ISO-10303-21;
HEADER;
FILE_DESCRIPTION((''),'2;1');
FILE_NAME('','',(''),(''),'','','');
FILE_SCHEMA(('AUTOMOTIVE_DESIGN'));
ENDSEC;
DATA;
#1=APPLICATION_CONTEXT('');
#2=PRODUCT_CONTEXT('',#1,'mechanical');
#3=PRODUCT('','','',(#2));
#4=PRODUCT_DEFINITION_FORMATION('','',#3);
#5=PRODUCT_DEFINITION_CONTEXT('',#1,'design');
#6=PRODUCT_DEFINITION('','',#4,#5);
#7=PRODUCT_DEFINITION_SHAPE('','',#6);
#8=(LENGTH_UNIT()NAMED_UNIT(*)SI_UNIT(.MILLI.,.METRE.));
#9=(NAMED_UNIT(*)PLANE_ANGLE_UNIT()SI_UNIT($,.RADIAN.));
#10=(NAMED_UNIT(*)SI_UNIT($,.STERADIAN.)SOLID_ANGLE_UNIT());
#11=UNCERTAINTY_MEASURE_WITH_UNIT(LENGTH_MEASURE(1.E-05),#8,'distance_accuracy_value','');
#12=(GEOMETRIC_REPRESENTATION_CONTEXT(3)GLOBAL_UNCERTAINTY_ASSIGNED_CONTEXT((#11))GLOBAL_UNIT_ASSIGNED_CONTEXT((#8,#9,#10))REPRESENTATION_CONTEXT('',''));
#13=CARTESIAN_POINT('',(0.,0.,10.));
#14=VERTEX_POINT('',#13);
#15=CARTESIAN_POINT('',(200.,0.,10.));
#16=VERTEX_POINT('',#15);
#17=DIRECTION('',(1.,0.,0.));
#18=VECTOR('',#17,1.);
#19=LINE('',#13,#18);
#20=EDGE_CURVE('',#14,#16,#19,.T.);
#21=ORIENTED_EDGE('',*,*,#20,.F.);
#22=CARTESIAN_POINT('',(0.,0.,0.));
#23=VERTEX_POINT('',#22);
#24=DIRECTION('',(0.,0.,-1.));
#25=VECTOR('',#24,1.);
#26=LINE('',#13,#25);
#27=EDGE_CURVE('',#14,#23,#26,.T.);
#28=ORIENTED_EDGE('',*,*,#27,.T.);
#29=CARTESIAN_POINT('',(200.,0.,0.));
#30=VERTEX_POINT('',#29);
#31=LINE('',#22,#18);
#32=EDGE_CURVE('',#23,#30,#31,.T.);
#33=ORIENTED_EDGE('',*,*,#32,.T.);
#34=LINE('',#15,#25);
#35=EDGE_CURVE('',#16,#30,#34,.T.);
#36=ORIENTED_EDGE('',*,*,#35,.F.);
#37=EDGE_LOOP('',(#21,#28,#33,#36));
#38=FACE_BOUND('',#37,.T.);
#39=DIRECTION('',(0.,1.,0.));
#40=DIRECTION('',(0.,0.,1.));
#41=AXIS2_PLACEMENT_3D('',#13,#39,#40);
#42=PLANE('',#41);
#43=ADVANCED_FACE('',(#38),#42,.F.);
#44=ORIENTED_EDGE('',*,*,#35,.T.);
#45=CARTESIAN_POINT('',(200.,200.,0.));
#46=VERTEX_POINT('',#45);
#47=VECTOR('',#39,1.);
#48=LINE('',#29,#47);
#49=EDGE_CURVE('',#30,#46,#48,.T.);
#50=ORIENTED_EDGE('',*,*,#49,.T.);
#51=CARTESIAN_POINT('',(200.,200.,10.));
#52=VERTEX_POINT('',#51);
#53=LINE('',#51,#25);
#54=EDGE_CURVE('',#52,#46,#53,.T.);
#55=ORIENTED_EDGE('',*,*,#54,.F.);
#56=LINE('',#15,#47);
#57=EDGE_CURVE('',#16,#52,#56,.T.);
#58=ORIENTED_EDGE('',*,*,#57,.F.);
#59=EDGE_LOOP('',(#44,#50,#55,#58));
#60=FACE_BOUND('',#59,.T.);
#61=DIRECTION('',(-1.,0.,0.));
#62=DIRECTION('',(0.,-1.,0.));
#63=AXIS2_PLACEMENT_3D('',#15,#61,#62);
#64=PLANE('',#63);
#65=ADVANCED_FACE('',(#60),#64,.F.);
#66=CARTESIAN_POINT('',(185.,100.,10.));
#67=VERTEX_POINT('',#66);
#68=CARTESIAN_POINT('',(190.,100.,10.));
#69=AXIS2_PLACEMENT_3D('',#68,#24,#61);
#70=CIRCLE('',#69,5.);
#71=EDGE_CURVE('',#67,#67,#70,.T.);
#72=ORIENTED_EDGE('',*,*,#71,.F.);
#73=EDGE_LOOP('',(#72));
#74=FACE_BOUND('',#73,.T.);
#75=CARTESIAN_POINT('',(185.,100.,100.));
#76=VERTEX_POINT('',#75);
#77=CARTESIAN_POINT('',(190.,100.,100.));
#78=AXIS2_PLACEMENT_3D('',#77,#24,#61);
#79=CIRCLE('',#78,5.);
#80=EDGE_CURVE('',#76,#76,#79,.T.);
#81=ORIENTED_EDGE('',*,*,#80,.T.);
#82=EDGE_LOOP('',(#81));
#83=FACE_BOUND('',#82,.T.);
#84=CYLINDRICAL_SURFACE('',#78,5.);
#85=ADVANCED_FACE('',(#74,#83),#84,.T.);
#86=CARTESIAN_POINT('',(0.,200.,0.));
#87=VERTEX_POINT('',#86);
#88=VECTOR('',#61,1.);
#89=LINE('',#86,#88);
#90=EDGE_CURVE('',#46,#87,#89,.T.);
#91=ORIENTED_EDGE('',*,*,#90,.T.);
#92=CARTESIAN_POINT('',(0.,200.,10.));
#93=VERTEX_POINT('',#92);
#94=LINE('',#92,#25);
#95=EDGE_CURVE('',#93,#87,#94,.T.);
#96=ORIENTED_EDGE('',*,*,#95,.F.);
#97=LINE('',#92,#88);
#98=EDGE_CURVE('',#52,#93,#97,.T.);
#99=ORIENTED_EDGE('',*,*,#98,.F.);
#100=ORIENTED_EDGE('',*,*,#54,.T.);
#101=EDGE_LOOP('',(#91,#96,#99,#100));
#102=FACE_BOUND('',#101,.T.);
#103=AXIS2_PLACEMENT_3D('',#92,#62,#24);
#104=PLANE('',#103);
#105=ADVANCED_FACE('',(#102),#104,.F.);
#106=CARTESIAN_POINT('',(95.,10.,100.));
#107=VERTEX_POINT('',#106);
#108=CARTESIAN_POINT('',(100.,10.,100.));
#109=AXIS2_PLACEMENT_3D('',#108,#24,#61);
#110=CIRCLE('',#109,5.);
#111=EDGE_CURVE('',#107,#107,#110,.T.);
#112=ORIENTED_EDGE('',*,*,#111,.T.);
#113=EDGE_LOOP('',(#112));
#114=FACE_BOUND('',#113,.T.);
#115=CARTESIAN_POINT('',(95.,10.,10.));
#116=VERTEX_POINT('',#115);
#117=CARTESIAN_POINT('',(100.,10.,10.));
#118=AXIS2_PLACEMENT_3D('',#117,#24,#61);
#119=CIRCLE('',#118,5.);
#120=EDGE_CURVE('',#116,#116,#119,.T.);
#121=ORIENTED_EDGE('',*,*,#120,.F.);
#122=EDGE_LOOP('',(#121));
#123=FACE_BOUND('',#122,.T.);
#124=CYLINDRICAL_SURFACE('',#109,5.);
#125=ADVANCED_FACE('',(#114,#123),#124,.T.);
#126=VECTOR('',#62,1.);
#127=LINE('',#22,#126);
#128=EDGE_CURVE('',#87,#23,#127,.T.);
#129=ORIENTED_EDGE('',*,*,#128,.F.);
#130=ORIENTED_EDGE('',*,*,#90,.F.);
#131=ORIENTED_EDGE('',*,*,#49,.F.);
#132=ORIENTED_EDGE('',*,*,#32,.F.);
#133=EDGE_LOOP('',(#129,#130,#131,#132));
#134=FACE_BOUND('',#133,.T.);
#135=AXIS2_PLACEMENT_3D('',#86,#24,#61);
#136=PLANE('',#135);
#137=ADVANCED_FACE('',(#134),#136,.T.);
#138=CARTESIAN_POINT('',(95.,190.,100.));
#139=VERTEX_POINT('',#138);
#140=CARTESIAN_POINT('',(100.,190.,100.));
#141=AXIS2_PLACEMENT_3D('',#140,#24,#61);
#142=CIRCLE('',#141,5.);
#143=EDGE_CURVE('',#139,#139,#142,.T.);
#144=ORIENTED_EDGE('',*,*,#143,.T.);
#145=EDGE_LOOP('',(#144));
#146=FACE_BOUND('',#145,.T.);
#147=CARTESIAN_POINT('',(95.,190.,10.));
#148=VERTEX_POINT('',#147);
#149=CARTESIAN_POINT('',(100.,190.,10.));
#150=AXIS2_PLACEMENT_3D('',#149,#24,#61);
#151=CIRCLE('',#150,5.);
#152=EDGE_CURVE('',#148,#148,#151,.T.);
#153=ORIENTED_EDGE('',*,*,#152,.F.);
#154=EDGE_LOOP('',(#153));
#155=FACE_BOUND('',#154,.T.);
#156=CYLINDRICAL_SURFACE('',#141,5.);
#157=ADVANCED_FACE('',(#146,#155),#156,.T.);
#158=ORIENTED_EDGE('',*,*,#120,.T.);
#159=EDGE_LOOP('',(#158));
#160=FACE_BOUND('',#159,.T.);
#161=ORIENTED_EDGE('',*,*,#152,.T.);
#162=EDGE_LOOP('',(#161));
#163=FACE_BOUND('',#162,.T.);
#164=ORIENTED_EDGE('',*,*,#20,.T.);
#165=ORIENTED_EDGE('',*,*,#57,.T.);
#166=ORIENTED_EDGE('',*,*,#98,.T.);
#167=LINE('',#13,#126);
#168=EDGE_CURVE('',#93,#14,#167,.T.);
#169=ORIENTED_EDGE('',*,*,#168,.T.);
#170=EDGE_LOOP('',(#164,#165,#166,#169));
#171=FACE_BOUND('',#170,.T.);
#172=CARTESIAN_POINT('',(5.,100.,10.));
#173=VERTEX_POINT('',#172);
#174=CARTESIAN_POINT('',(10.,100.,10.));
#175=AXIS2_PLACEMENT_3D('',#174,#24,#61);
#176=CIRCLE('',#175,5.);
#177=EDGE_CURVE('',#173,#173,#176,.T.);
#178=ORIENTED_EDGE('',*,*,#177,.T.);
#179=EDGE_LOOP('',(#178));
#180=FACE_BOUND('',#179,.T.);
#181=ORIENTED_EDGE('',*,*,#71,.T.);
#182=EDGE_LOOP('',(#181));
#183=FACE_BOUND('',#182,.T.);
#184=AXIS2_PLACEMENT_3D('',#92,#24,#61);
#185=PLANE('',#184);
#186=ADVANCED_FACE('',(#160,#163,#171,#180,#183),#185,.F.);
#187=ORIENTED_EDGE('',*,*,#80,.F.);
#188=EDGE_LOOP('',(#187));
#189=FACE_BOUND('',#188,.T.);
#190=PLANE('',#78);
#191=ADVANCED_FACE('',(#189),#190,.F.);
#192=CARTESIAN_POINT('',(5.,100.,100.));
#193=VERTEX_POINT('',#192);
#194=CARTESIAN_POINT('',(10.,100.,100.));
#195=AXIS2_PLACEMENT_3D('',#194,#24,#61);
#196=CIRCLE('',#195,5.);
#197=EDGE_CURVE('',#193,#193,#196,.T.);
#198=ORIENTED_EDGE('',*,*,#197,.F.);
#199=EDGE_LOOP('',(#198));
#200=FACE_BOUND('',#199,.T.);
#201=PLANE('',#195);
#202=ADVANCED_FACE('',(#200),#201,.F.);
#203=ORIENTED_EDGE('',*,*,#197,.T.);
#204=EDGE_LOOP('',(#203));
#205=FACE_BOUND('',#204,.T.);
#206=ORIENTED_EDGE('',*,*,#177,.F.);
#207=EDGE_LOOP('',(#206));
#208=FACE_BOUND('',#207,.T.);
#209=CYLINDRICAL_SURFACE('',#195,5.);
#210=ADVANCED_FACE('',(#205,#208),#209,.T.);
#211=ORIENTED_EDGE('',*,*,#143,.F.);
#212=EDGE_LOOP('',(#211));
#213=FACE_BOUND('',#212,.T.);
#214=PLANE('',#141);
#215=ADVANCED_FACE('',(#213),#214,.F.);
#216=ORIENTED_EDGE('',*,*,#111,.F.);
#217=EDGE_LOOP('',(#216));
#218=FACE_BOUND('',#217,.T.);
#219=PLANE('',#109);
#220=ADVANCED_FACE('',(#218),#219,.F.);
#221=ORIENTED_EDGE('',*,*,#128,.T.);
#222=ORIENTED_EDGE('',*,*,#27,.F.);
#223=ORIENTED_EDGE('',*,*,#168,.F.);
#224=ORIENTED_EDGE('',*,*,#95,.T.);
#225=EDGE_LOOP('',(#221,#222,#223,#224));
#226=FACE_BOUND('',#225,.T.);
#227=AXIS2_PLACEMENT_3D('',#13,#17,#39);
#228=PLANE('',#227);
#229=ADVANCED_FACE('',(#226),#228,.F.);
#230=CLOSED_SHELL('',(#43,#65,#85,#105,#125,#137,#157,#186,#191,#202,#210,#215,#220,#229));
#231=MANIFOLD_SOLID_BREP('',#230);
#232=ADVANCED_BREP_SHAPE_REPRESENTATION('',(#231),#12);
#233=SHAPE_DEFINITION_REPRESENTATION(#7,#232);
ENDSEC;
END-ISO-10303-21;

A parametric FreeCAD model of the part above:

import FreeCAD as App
import Part
import Sketcher

doc = App.newDocument("Part")
body = doc.addObject("PartDesign::Body", "Body")

sketch1 = body.newObject("Sketcher::SketchObject", "Sketch")
sketch1.AttachmentSupport = (doc.getObject("XY_Plane"), [""])
sketch1.MapMode = "FlatFace"
sketch1.addGeometry(Part.LineSegment(App.Vector(0, 200, 0), App.Vector(0, 0, 0)), False)
sketch1.addGeometry(Part.LineSegment(App.Vector(0, 0, 0), App.Vector(200, 0, 0)), False)
sketch1.addGeometry(Part.LineSegment(App.Vector(200, 0, 0), App.Vector(200, 200, 0)), False)
sketch1.addGeometry(Part.LineSegment(App.Vector(200, 200, 0), App.Vector(0, 200, 0)), False)
sketch1.addConstraint(Sketcher.Constraint("Coincident", 0, 2, 1, 1))
sketch1.addConstraint(Sketcher.Constraint("Coincident", 1, 2, 2, 1))
sketch1.addConstraint(Sketcher.Constraint("Coincident", 2, 2, 3, 1))
sketch1.addConstraint(Sketcher.Constraint("Coincident", 3, 2, 0, 1))
sketch1.addConstraint(Sketcher.Constraint("Vertical", 0))
sketch1.addConstraint(Sketcher.Constraint("Horizontal", 1))
sketch1.addConstraint(Sketcher.Constraint("Vertical", 2))
sketch1.addConstraint(Sketcher.Constraint("Horizontal", 3))
sketch1.addConstraint(Sketcher.Constraint("Coincident", 0, 2, -1, 1))
sketch1.addConstraint(Sketcher.Constraint("Equal", 3, 0))
sketch1.addConstraint(Sketcher.Constraint("DistanceX", 1, 1, 1, 2, 200.0))
pad1 = body.newObject("PartDesign::Pad", "Pad")
pad1.Profile = sketch1
pad1.Length = 10

sketch2 = body.newObject("Sketcher::SketchObject", "Sketch001")
sketch2.AttachmentSupport = (doc.getObject("XY_Plane"), [""])
sketch2.MapMode = "FlatFace"
sketch2.addGeometry(Part.Circle(App.Vector(190, 100, 0), App.Vector(0, 0, 1), 5), False)
sketch2.addGeometry(Part.Circle(App.Vector(100, 10, 0), App.Vector(0, 0, 1), 5), False)
sketch2.addGeometry(Part.Circle(App.Vector(100, 190, 0), App.Vector(0, 0, 1), 5), False)
sketch2.addGeometry(Part.Circle(App.Vector(10, 100, 0), App.Vector(0, 0, 1), 5), False)
sketch2.addConstraint(Sketcher.Constraint("Equal", 0, 1))
sketch2.addConstraint(Sketcher.Constraint("Equal", 1, 2))
sketch2.addConstraint(Sketcher.Constraint("Equal", 2, 3))
sketch2.addConstraint(Sketcher.Constraint("Horizontal", 0, 3, 3, 3))
sketch2.addConstraint(Sketcher.Constraint("Vertical", 1, 3, 2, 3))
sketch2.addConstraint(Sketcher.Constraint("Diameter", 0, 10.0))
sketch2.addConstraint(Sketcher.Constraint("DistanceX", -1, 1, 0, 3, 190.0))
sketch2.addConstraint(Sketcher.Constraint("DistanceY", -1, 1, 0, 3, 100.0))
sketch2.addConstraint(Sketcher.Constraint("DistanceX", -1, 1, 1, 3, 100.0))
sketch2.addConstraint(Sketcher.Constraint("DistanceY", -1, 1, 1, 3, 10.0))
sketch2.addConstraint(Sketcher.Constraint("DistanceY", -1, 1, 2, 3, 190.0))
sketch2.addConstraint(Sketcher.Constraint("DistanceX", -1, 1, 3, 3, 10.0))
pad2 = body.newObject("PartDesign::Pad", "Pad001")
pad2.Profile = sketch2
pad2.Length = 100

doc.recompute()
